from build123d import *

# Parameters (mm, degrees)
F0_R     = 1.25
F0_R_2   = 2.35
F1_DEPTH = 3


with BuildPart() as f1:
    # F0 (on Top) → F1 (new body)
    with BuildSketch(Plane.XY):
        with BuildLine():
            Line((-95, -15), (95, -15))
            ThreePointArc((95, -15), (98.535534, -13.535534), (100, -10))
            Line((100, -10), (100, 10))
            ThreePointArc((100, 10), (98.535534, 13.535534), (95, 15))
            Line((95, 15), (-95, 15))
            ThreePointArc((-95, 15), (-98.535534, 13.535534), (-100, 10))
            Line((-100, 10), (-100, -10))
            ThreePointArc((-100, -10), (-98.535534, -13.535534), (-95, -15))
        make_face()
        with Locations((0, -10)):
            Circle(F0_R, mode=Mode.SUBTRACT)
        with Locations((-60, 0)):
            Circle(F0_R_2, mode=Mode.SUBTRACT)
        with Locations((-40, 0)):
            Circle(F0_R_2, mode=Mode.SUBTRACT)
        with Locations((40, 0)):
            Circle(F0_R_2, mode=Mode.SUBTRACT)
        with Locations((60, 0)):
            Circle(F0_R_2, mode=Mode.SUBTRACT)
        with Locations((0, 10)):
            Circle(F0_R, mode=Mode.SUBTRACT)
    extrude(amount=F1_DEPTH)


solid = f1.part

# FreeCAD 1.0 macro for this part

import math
import FreeCAD as App
import Part
import Sketcher
from FreeCAD import Vector

doc = App.newDocument("Part")
body = doc.addObject("PartDesign::Body", "Body")

# Sketch on XY plane
sketch1 = doc.addObject("Sketcher::SketchObject", "Sketch")
body.addObject(sketch1)
sketch1.AttachmentSupport = (doc.XY_Plane, [""])
sketch1.MapMode = "FlatFace"
sketch1.addGeometry(Part.LineSegment(Vector(-95, -15, 0), Vector(95, -15, 0)), False)
sketch1.addGeometry(Part.ArcOfCircle(Part.Circle(Vector(95, -10, 0), Vector(0, 0, 1), 5), math.radians(-90), math.radians(0)), False)
sketch1.addGeometry(Part.LineSegment(Vector(100, -10, 0), Vector(100, 10, 0)), False)
sketch1.addGeometry(Part.ArcOfCircle(Part.Circle(Vector(95, 10, 0), Vector(0, 0, 1), 5), math.radians(0), math.radians(90)), False)
sketch1.addGeometry(Part.LineSegment(Vector(95, 15, 0), Vector(-95, 15, 0)), False)
sketch1.addGeometry(Part.ArcOfCircle(Part.Circle(Vector(-95, 10, 0), Vector(0, 0, 1), 5), math.radians(90), math.radians(180)), False)
sketch1.addGeometry(Part.LineSegment(Vector(-100, 10, 0), Vector(-100, -10, 0)), False)
sketch1.addGeometry(Part.ArcOfCircle(Part.Circle(Vector(-95, -10, 0), Vector(0, 0, 1), 5), math.radians(180), math.radians(270)), False)
sketch1.addGeometry(Part.Circle(Vector(0, -10, 0), Vector(0, 0, 1), 1.2), False)
sketch1.addGeometry(Part.Circle(Vector(-60, 0, 0), Vector(0, 0, 1), 2.4), False)
sketch1.addGeometry(Part.Circle(Vector(-40, 0, 0), Vector(0, 0, 1), 2.4), False)
sketch1.addGeometry(Part.Circle(Vector(40, 0, 0), Vector(0, 0, 1), 2.4), False)
sketch1.addGeometry(Part.Circle(Vector(60, 0, 0), Vector(0, 0, 1), 2.4), False)
sketch1.addGeometry(Part.Circle(Vector(0, 10, 0), Vector(0, 0, 1), 1.2), False)
sketch1.addConstraint(Sketcher.Constraint("Tangent", 0, 2, 1, 1))
sketch1.addConstraint(Sketcher.Constraint("Tangent", 1, 2, 2, 1))
sketch1.addConstraint(Sketcher.Constraint("Tangent", 2, 2, 3, 1))
sketch1.addConstraint(Sketcher.Constraint("Tangent", 3, 2, 4, 1))
sketch1.addConstraint(Sketcher.Constraint("Tangent", 4, 2, 5, 1))
sketch1.addConstraint(Sketcher.Constraint("Tangent", 5, 2, 6, 1))
sketch1.addConstraint(Sketcher.Constraint("Tangent", 6, 2, 7, 1))
sketch1.addConstraint(Sketcher.Constraint("Tangent", 7, 2, 0, 1))
sketch1.addConstraint(Sketcher.Constraint("Horizontal", 0))
sketch1.addConstraint(Sketcher.Constraint("Vertical", 2))
sketch1.addConstraint(Sketcher.Constraint("Horizontal", 4))
sketch1.addConstraint(Sketcher.Constraint("Vertical", 6))
sketch1.addConstraint(Sketcher.Constraint("Equal", 1, 3))
sketch1.addConstraint(Sketcher.Constraint("Equal", 3, 5))
sketch1.addConstraint(Sketcher.Constraint("Equal", 5, 7))
sketch1.addConstraint(Sketcher.Constraint("Equal", 9, 10))
sketch1.addConstraint(Sketcher.Constraint("Equal", 10, 11))
sketch1.addConstraint(Sketcher.Constraint("Equal", 11, 12))
sketch1.addConstraint(Sketcher.Constraint("Equal", 8, 13))
sketch1.addConstraint(Sketcher.Constraint("Symmetric", 1, 3, 5, 3, -1, 1))
sketch1.addConstraint(Sketcher.Constraint("Symmetric", 10, 3, 11, 3, -1, 1))
sketch1.addConstraint(Sketcher.Constraint("Symmetric", 9, 3, 12, 3, -1, 1))
sketch1.addConstraint(Sketcher.Constraint("Symmetric", 8, 3, 13, 3, -1, 1))
sketch1.addConstraint(Sketcher.Constraint("PointOnObject", 8, 3, -2))
sketch1.addConstraint(Sketcher.Constraint("PointOnObject", 9, 3, -1))
sketch1.addConstraint(Sketcher.Constraint("PointOnObject", 10, 3, -1))
sketch1.addConstraint(Sketcher.Constraint("Horizontal", 7, 3, 8, 3))
sketch1.addConstraint(Sketcher.Constraint("Radius", 1, 5.0))
sketch1.addConstraint(Sketcher.Constraint("Diameter", 8, 2.5))
sketch1.addConstraint(Sketcher.Constraint("Diameter", 9, 4.7))
sketch1.addConstraint(Sketcher.Constraint("DistanceX", 0, 1, 0, 2, 190.0))
sketch1.addConstraint(Sketcher.Constraint("DistanceY", 2, 1, 2, 2, 20.0))
sketch1.addConstraint(Sketcher.Constraint("DistanceX", 9, 3, -1, 1, 60.0))
sketch1.addConstraint(Sketcher.Constraint("DistanceX", 10, 3, -1, 1, 40.0))
pad1 = doc.addObject("PartDesign::Pad", "Pad")
body.addObject(pad1)
pad1.Profile = sketch1
pad1.Length = 3

doc.recompute()
